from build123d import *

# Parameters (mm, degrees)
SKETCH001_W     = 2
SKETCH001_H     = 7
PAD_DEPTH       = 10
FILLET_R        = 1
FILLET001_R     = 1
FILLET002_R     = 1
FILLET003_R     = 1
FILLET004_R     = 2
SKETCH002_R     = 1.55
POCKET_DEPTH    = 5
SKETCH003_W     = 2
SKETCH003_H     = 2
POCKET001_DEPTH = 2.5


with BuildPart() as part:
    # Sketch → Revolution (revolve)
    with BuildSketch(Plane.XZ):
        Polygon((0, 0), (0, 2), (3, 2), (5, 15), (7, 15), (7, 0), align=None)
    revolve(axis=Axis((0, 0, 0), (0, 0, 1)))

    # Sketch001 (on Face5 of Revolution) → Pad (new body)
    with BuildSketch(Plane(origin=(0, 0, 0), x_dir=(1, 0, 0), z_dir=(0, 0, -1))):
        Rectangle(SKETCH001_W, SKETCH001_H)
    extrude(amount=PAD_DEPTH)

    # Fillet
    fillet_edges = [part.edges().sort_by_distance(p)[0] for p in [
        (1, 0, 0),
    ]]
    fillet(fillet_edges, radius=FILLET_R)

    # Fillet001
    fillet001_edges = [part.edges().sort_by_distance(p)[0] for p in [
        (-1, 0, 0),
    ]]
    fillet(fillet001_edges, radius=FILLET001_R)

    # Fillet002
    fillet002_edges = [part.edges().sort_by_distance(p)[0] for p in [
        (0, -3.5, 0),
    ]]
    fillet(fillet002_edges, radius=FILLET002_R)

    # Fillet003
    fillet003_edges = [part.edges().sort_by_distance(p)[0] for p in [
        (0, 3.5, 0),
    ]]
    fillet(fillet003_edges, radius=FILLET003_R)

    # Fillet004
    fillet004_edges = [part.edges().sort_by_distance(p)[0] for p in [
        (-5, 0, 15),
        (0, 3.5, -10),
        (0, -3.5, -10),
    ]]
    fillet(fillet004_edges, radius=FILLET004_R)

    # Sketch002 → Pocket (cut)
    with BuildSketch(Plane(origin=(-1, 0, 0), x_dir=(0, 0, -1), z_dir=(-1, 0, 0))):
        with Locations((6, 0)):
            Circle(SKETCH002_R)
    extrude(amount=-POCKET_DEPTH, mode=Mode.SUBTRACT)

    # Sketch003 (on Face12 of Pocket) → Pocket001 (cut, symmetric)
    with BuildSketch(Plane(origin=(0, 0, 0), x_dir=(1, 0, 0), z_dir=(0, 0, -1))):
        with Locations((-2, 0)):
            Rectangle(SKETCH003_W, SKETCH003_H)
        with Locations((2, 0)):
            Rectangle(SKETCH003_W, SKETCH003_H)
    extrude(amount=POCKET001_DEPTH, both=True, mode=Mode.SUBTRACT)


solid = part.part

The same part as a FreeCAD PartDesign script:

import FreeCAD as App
import Part
import Sketcher
from FreeCAD import Vector
Q = App.Units.Quantity


def edges_at(feature, points):
    """Names of the edges that pass closest to the given points."""
    edges = feature.Shape.Edges
    near = lambda p: min(range(len(edges)), key=lambda i: edges[i].distToShape(Part.Vertex(*p))[0])
    return sorted({f"Edge{near(p) + 1}" for p in points})


def add_polygon(sketch, points):
    """Adds a closed chain of lines whose ends are joined by coincident constraints."""
    first, n = sketch.GeometryCount, len(points)
    for a, b in zip(points, points[1:] + points[:1]):
        sketch.addGeometry(Part.LineSegment(App.Vector(*a, 0), App.Vector(*b, 0)), False)
    for i in range(n):
        sketch.addConstraint(Sketcher.Constraint("Coincident", first + i, 2, first + (i + 1) % n, 1))

doc = App.newDocument("Part")
body = doc.addObject("PartDesign::Body", "Body")

# Sketch on XZ plane
sketch1 = body.newObject("Sketcher::SketchObject", "Sketch")
sketch1.AttachmentSupport = (doc.getObject("XZ_Plane"), [""])
sketch1.MapMode = "FlatFace"
add_polygon(sketch1, [(0, 2), (0, 0), (7, 0), (7, 15), (5, 15), (3, 2)])  # lines 0-5
sketch1.addConstraint([
    Sketcher.Constraint("Vertical", 0),
    Sketcher.Constraint("Horizontal", 1),
    Sketcher.Constraint("Vertical", 2),
    Sketcher.Constraint("Horizontal", 3),
    Sketcher.Constraint("Horizontal", 5),
    Sketcher.Constraint("Coincident", 0, 2, -1, 1),
    Sketcher.Constraint("Equal", 3, 0),
    Sketcher.Constraint("DistanceX", 1, 1, 1, 2, Q("7 mm")),
    Sketcher.Constraint("DistanceX", 3, 2, 3, 1, Q("2 mm")),
    Sketcher.Constraint("DistanceX", 5, 2, 5, 1, Q("3 mm")),
    Sketcher.Constraint("DistanceY", 2, 1, 2, 2, Q("15 mm")),
])
revolution = body.newObject("PartDesign::Revolution", "Revolution")
revolution.Profile = sketch1
revolution.ReferenceAxis = (sketch1, ["V_Axis"])
revolution.Angle = 360

# Sketch on XY plane
sketch2 = body.newObject("Sketcher::SketchObject", "Sketch001")
sketch2.AttachmentSupport = (doc.getObject("XY_Plane"), [""])
sketch2.MapMode = "FlatFace"
add_polygon(sketch2, [(-1, -3.5), (-1, 3.5), (1, 3.5), (1, -3.5)])  # lines 0-3
sketch2.addConstraint([
    Sketcher.Constraint("Vertical", 0),
    Sketcher.Constraint("Horizontal", 1),
    Sketcher.Constraint("Vertical", 2),
    Sketcher.Constraint("Horizontal", 3),
    Sketcher.Constraint("Symmetric", 0, 2, 2, 2, -1, 1),
    Sketcher.Constraint("DistanceX", 1, 1, 1, 2, Q("2 mm")),
    Sketcher.Constraint("DistanceY", 0, 1, 0, 2, Q("7 mm")),
])
pad1 = body.newObject("PartDesign::Pad", "Pad")
pad1.Profile = sketch2
pad1.Length = 10
pad1.Reversed = True
doc.recompute()

fillet = body.newObject("PartDesign::Fillet", "Fillet")
fillet.Base = (pad1, edges_at(pad1, [(1, 0, 0)]))
fillet.Radius = 1
doc.recompute()

fillet2 = body.newObject("PartDesign::Fillet", "Fillet001")
fillet2.Base = (fillet, edges_at(fillet, [(-1, 0, 0)]))
fillet2.Radius = 1
doc.recompute()

fillet3 = body.newObject("PartDesign::Fillet", "Fillet002")
fillet3.Base = (fillet2, edges_at(fillet2, [(0, -3.5, 0)]))
fillet3.Radius = 1
doc.recompute()

fillet4 = body.newObject("PartDesign::Fillet", "Fillet003")
fillet4.Base = (fillet3, edges_at(fillet3, [(0, 3.5, 0)]))
fillet4.Radius = 1
doc.recompute()

fillet5 = body.newObject("PartDesign::Fillet", "Fillet004")
fillet5.Base = (fillet4, edges_at(fillet4, [(-5, 0, 15), (0, 3.5, -10), (0, -3.5, -10)]))
fillet5.Radius = 2

# Sketch on YZ plane
sketch3 = body.newObject("Sketcher::SketchObject", "Sketch002")
sketch3.AttachmentSupport = (doc.getObject("YZ_Plane"), [""])
sketch3.MapMode = "FlatFace"
sketch3.AttachmentOffset = App.Placement(Vector(0, 0, -1), App.Rotation())
sketch3.addGeometry(Part.Circle(Vector(0, -6, 0), Vector(0, 0, 1), 1.6), False)
sketch3.addConstraint([
    Sketcher.Constraint("PointOnObject", 0, 3, -2),
    Sketcher.Constraint("Diameter", 0, Q("3.1 mm")),
    Sketcher.Constraint("DistanceY", 0, 3, -1, 1, Q("6 mm")),
])
pocket1 = body.newObject("PartDesign::Pocket", "Pocket")
pocket1.Profile = sketch3
pocket1.Length = 5
pocket1.Reversed = True

# Sketch on XY plane
sketch4 = body.newObject("Sketcher::SketchObject", "Sketch003")
sketch4.AttachmentSupport = (doc.getObject("XY_Plane"), [""])
sketch4.MapMode = "FlatFace"
add_polygon(sketch4, [(-3, -1), (-3, 1), (-1, 1), (-1, -1)])  # lines 0-3
add_polygon(sketch4, [(1, -1), (1, 1), (3, 1), (3, -1)])  # lines 4-7
sketch4.addConstraint([
    Sketcher.Constraint("Vertical", 0),
    Sketcher.Constraint("Horizontal", 1),
    Sketcher.Constraint("Vertical", 2),
    Sketcher.Constraint("Horizontal", 3),
    Sketcher.Constraint("Vertical", 4),
    Sketcher.Constraint("Horizontal", 5),
    Sketcher.Constraint("Vertical", 6),
    Sketcher.Constraint("Horizontal", 7),
    Sketcher.Constraint("Symmetric", 2, 2, 4, 2, -1, 1),
    Sketcher.Constraint("Symmetric", 0, 2, 6, 2, -1, 1),
    Sketcher.Constraint("Horizontal", 1, 2, 4, 2),
    Sketcher.Constraint("Equal", 7, 0),
    Sketcher.Constraint("DistanceX", 1, 1, 1, 2, Q("2 mm")),
    Sketcher.Constraint("DistanceX", 0, 2, -1, 1, Q("3 mm")),
])
pocket2 = body.newObject("PartDesign::Pocket", "Pocket001")
pocket2.Profile = sketch4
pocket2.Length = 5
pocket2.Midplane = True

doc.recompute()
